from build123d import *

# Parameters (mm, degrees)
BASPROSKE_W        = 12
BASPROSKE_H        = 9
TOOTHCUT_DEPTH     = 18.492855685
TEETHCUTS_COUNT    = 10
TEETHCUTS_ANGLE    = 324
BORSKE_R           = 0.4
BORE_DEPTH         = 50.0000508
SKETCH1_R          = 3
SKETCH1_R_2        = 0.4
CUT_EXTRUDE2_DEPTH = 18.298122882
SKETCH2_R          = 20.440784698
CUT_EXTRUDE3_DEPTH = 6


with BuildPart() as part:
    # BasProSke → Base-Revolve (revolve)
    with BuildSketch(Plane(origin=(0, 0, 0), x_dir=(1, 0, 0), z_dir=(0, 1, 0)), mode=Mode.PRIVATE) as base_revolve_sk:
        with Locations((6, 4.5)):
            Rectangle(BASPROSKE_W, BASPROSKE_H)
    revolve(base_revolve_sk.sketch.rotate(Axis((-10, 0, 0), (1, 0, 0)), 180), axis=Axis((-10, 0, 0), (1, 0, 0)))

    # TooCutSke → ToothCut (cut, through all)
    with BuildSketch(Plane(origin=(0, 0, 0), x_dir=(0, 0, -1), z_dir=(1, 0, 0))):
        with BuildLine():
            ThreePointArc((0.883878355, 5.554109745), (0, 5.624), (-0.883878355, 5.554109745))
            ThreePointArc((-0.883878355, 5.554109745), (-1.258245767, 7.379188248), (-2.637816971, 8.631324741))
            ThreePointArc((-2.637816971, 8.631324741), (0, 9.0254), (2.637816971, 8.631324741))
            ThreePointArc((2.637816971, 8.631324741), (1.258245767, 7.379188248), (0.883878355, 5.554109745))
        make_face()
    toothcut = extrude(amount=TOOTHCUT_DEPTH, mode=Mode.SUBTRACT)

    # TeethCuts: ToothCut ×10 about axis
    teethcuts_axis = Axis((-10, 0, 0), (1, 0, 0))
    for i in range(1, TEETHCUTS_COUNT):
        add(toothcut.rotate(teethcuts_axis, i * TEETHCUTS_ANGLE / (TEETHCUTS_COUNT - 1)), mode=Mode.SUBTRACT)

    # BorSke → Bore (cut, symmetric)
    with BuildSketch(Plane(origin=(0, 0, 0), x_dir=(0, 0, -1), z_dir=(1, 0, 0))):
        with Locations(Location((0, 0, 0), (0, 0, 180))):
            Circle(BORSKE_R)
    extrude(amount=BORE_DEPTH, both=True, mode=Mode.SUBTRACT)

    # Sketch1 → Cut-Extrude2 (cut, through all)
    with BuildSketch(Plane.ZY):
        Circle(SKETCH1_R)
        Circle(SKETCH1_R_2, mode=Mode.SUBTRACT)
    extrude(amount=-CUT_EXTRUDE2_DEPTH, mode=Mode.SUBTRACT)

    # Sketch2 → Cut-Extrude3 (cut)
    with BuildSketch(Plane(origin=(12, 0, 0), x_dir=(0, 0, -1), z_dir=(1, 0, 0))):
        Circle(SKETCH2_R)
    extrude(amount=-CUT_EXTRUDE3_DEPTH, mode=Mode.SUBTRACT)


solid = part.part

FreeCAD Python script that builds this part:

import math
import FreeCAD as App
import Part
import Sketcher
from FreeCAD import Vector

doc = App.newDocument("Part")
params = doc.addObject("Spreadsheet::Sheet", "Params")
for row, (alias, value) in enumerate([
    ("sketch1_width", "12 mm"),
    ("sketch1_height", "9 mm"),
    ("revolution_angle", "360 deg"),
    ("sketch2_radius", "3 mm"),
    ("sketch3_diameter", "0.8 mm"),
    ("pocket2_length", "100.000102 mm"),
    ("sketch4_diameter", "6 mm"),
    ("sketch4_diameter2", "0.8 mm"),
    ("pocket4_length", "6 mm"),
], start=1):
    params.set(f"A{row}", alias)
    params.set(f"B{row}", "=" + value)
    params.setAlias(f"B{row}", alias)

body = doc.addObject("PartDesign::Body", "Body")

sketch1 = doc.addObject("Sketcher::SketchObject", "Sketch")
body.addObject(sketch1)
sketch1.AttachmentSupport = (doc.XZ_Plane, [""])
sketch1.MapMode = "FlatFace"
sketch1.addGeometry([
    Part.LineSegment(Vector(0, -9, 0), Vector(0, 0, 0)),
    Part.LineSegment(Vector(0, 0, 0), Vector(12, 0, 0)),
    Part.LineSegment(Vector(12, 0, 0), Vector(12, -9, 0)),
    Part.LineSegment(Vector(12, -9, 0), Vector(0, -9, 0)),
], False)
sketch1.addConstraint([
    Sketcher.Constraint("Coincident", 0, 2, 1, 1),
    Sketcher.Constraint("Coincident", 1, 2, 2, 1),
    Sketcher.Constraint("Coincident", 2, 2, 3, 1),
    Sketcher.Constraint("Coincident", 3, 2, 0, 1),
    Sketcher.Constraint("Vertical", 0),
    Sketcher.Constraint("Horizontal", 1),
    Sketcher.Constraint("Vertical", 2),
    Sketcher.Constraint("Horizontal", 3),
    Sketcher.Constraint("Coincident", 0, 2, -1, 1),
    Sketcher.Constraint("DistanceX", 1, 1, 1, 2, 12.0),
    Sketcher.Constraint("DistanceY", 0, 1, 0, 2, 9.0),
])
sketch1.setExpression("Constraints[9]", "Params.sketch1_width")
sketch1.setExpression("Constraints[10]", "Params.sketch1_height")
revolution = doc.addObject("PartDesign::Revolution", "Revolution")
body.addObject(revolution)
revolution.Profile = sketch1
revolution.ReferenceAxis = (sketch1, ["H_Axis"])
revolution.setExpression("Angle", "Params.revolution_angle")

sketch2 = doc.addObject("Sketcher::SketchObject", "Sketch001")
body.addObject(sketch2)
sketch2.AttachmentSupport = (doc.YZ_Plane, [""])
sketch2.MapMode = "FlatFace"
sketch2.addGeometry([
    Part.ArcOfCircle(Part.Circle(Vector(0, 0, 0), Vector(0, 0, 1), 5.6), math.radians(-9.04), math.radians(9.04)),
    Part.ArcOfCircle(Part.Circle(Vector(5.9, -3.9, 0), Vector(0, 0, 1), 3), math.radians(24), math.radians(96)),
    Part.ArcOfCircle(Part.Circle(Vector(0, 0, 0), Vector(0, 0, 1), 9), math.radians(-17), math.radians(17)),
    Part.ArcOfCircle(Part.Circle(Vector(5.9, 3.9, 0), Vector(0, 0, 1), 3), math.radians(-96), math.radians(-24)),
], False)
sketch2.addConstraint([
    Sketcher.Constraint("Coincident", 0, 1, 1, 2),
    Sketcher.Constraint("Coincident", 1, 1, 2, 1),
    Sketcher.Constraint("Coincident", 2, 2, 3, 2),
    Sketcher.Constraint("Coincident", 3, 1, 0, 2),
    Sketcher.Constraint("Coincident", 0, 3, -1, 1),
    Sketcher.Constraint("Coincident", 2, 3, -1, 1),
    Sketcher.Constraint("Equal", 1, 3),
    Sketcher.Constraint("Symmetric", 1, 3, 3, 3, -1),
    Sketcher.Constraint("Radius", 1, 3.0),
    Sketcher.Constraint("Radius", 0, 5.624),
    Sketcher.Constraint("Radius", 2, 9.0254),
    Sketcher.Constraint("DistanceX", 1, 3, 1, 1, 2.737698),
    Sketcher.Constraint("DistanceX", -1, 1, 0, 1, 5.55411),
])
sketch2.setExpression("Constraints[8]", "Params.sketch2_radius")
pocket1 = doc.addObject("PartDesign::Pocket", "Pocket")
body.addObject(pocket1)
pocket1.Profile = sketch2
pocket1.Type = "ThroughAll"
pocket1.Reversed = True
doc.recompute()

polarpattern = doc.addObject("PartDesign::PolarPattern", "PolarPattern")
body.addObject(polarpattern)
polarpattern.Originals = [pocket1]
polarpattern.Axis = (doc.X_Axis, [""])
polarpattern.Angle = 360
polarpattern.Occurrences = 10
body.Tip = polarpattern

sketch3 = doc.addObject("Sketcher::SketchObject", "Sketch002")
body.addObject(sketch3)
sketch3.AttachmentSupport = (doc.YZ_Plane, [""])
sketch3.MapMode = "FlatFace"
sketch3.addGeometry(Part.Circle(Vector(0, 0, 0), Vector(0, 0, 1), 0.4), False)
sketch3.addConstraint([
    Sketcher.Constraint("Coincident", 0, 3, -1, 1),
    Sketcher.Constraint("Diameter", 0, 0.8),
])
sketch3.setExpression("Constraints[1]", "Params.sketch3_diameter")
pocket2 = doc.addObject("PartDesign::Pocket", "Pocket001")
body.addObject(pocket2)
pocket2.Profile = sketch3
pocket2.setExpression("Length", "Params.pocket2_length")
pocket2.Midplane = True

sketch4 = doc.addObject("Sketcher::SketchObject", "Sketch003")
body.addObject(sketch4)
sketch4.AttachmentSupport = (doc.YZ_Plane, [""])
sketch4.MapMode = "FlatFace"
sketch4.addGeometry([
    Part.Circle(Vector(0, 0, 0), Vector(0, 0, 1), 3),
    Part.Circle(Vector(0, 0, 0), Vector(0, 0, 1), 0.4),
], False)
sketch4.addConstraint([
    Sketcher.Constraint("Coincident", 0, 3, -1, 1),
    Sketcher.Constraint("Coincident", 1, 3, -1, 1),
    Sketcher.Constraint("Diameter", 0, 6.0),
    Sketcher.Constraint("Diameter", 1, 0.8),
])
sketch4.setExpression("Constraints[2]", "Params.sketch4_diameter")
sketch4.setExpression("Constraints[3]", "Params.sketch4_diameter2")
pocket3 = doc.addObject("PartDesign::Pocket", "Pocket002")
body.addObject(pocket3)
pocket3.Profile = sketch4
pocket3.Type = "ThroughAll"
pocket3.Reversed = True

sketch5 = doc.addObject("Sketcher::SketchObject", "Sketch004")
body.addObject(sketch5)
sketch5.AttachmentSupport = (doc.YZ_Plane, [""])
sketch5.MapMode = "FlatFace"
sketch5.AttachmentOffset = App.Placement(Vector(0, 0, 12), App.Rotation())
sketch5.addGeometry(Part.Circle(Vector(0, 0, 0), Vector(0, 0, 1), 20), False)
sketch5.addConstraint([
    Sketcher.Constraint("Coincident", 0, 3, -1, 1),
    Sketcher.Constraint("Diameter", 0, 40.881569),
])
pocket4 = doc.addObject("PartDesign::Pocket", "Pocket003")
body.addObject(pocket4)
pocket4.Profile = sketch5
pocket4.setExpression("Length", "Params.pocket4_length")

doc.recompute()
